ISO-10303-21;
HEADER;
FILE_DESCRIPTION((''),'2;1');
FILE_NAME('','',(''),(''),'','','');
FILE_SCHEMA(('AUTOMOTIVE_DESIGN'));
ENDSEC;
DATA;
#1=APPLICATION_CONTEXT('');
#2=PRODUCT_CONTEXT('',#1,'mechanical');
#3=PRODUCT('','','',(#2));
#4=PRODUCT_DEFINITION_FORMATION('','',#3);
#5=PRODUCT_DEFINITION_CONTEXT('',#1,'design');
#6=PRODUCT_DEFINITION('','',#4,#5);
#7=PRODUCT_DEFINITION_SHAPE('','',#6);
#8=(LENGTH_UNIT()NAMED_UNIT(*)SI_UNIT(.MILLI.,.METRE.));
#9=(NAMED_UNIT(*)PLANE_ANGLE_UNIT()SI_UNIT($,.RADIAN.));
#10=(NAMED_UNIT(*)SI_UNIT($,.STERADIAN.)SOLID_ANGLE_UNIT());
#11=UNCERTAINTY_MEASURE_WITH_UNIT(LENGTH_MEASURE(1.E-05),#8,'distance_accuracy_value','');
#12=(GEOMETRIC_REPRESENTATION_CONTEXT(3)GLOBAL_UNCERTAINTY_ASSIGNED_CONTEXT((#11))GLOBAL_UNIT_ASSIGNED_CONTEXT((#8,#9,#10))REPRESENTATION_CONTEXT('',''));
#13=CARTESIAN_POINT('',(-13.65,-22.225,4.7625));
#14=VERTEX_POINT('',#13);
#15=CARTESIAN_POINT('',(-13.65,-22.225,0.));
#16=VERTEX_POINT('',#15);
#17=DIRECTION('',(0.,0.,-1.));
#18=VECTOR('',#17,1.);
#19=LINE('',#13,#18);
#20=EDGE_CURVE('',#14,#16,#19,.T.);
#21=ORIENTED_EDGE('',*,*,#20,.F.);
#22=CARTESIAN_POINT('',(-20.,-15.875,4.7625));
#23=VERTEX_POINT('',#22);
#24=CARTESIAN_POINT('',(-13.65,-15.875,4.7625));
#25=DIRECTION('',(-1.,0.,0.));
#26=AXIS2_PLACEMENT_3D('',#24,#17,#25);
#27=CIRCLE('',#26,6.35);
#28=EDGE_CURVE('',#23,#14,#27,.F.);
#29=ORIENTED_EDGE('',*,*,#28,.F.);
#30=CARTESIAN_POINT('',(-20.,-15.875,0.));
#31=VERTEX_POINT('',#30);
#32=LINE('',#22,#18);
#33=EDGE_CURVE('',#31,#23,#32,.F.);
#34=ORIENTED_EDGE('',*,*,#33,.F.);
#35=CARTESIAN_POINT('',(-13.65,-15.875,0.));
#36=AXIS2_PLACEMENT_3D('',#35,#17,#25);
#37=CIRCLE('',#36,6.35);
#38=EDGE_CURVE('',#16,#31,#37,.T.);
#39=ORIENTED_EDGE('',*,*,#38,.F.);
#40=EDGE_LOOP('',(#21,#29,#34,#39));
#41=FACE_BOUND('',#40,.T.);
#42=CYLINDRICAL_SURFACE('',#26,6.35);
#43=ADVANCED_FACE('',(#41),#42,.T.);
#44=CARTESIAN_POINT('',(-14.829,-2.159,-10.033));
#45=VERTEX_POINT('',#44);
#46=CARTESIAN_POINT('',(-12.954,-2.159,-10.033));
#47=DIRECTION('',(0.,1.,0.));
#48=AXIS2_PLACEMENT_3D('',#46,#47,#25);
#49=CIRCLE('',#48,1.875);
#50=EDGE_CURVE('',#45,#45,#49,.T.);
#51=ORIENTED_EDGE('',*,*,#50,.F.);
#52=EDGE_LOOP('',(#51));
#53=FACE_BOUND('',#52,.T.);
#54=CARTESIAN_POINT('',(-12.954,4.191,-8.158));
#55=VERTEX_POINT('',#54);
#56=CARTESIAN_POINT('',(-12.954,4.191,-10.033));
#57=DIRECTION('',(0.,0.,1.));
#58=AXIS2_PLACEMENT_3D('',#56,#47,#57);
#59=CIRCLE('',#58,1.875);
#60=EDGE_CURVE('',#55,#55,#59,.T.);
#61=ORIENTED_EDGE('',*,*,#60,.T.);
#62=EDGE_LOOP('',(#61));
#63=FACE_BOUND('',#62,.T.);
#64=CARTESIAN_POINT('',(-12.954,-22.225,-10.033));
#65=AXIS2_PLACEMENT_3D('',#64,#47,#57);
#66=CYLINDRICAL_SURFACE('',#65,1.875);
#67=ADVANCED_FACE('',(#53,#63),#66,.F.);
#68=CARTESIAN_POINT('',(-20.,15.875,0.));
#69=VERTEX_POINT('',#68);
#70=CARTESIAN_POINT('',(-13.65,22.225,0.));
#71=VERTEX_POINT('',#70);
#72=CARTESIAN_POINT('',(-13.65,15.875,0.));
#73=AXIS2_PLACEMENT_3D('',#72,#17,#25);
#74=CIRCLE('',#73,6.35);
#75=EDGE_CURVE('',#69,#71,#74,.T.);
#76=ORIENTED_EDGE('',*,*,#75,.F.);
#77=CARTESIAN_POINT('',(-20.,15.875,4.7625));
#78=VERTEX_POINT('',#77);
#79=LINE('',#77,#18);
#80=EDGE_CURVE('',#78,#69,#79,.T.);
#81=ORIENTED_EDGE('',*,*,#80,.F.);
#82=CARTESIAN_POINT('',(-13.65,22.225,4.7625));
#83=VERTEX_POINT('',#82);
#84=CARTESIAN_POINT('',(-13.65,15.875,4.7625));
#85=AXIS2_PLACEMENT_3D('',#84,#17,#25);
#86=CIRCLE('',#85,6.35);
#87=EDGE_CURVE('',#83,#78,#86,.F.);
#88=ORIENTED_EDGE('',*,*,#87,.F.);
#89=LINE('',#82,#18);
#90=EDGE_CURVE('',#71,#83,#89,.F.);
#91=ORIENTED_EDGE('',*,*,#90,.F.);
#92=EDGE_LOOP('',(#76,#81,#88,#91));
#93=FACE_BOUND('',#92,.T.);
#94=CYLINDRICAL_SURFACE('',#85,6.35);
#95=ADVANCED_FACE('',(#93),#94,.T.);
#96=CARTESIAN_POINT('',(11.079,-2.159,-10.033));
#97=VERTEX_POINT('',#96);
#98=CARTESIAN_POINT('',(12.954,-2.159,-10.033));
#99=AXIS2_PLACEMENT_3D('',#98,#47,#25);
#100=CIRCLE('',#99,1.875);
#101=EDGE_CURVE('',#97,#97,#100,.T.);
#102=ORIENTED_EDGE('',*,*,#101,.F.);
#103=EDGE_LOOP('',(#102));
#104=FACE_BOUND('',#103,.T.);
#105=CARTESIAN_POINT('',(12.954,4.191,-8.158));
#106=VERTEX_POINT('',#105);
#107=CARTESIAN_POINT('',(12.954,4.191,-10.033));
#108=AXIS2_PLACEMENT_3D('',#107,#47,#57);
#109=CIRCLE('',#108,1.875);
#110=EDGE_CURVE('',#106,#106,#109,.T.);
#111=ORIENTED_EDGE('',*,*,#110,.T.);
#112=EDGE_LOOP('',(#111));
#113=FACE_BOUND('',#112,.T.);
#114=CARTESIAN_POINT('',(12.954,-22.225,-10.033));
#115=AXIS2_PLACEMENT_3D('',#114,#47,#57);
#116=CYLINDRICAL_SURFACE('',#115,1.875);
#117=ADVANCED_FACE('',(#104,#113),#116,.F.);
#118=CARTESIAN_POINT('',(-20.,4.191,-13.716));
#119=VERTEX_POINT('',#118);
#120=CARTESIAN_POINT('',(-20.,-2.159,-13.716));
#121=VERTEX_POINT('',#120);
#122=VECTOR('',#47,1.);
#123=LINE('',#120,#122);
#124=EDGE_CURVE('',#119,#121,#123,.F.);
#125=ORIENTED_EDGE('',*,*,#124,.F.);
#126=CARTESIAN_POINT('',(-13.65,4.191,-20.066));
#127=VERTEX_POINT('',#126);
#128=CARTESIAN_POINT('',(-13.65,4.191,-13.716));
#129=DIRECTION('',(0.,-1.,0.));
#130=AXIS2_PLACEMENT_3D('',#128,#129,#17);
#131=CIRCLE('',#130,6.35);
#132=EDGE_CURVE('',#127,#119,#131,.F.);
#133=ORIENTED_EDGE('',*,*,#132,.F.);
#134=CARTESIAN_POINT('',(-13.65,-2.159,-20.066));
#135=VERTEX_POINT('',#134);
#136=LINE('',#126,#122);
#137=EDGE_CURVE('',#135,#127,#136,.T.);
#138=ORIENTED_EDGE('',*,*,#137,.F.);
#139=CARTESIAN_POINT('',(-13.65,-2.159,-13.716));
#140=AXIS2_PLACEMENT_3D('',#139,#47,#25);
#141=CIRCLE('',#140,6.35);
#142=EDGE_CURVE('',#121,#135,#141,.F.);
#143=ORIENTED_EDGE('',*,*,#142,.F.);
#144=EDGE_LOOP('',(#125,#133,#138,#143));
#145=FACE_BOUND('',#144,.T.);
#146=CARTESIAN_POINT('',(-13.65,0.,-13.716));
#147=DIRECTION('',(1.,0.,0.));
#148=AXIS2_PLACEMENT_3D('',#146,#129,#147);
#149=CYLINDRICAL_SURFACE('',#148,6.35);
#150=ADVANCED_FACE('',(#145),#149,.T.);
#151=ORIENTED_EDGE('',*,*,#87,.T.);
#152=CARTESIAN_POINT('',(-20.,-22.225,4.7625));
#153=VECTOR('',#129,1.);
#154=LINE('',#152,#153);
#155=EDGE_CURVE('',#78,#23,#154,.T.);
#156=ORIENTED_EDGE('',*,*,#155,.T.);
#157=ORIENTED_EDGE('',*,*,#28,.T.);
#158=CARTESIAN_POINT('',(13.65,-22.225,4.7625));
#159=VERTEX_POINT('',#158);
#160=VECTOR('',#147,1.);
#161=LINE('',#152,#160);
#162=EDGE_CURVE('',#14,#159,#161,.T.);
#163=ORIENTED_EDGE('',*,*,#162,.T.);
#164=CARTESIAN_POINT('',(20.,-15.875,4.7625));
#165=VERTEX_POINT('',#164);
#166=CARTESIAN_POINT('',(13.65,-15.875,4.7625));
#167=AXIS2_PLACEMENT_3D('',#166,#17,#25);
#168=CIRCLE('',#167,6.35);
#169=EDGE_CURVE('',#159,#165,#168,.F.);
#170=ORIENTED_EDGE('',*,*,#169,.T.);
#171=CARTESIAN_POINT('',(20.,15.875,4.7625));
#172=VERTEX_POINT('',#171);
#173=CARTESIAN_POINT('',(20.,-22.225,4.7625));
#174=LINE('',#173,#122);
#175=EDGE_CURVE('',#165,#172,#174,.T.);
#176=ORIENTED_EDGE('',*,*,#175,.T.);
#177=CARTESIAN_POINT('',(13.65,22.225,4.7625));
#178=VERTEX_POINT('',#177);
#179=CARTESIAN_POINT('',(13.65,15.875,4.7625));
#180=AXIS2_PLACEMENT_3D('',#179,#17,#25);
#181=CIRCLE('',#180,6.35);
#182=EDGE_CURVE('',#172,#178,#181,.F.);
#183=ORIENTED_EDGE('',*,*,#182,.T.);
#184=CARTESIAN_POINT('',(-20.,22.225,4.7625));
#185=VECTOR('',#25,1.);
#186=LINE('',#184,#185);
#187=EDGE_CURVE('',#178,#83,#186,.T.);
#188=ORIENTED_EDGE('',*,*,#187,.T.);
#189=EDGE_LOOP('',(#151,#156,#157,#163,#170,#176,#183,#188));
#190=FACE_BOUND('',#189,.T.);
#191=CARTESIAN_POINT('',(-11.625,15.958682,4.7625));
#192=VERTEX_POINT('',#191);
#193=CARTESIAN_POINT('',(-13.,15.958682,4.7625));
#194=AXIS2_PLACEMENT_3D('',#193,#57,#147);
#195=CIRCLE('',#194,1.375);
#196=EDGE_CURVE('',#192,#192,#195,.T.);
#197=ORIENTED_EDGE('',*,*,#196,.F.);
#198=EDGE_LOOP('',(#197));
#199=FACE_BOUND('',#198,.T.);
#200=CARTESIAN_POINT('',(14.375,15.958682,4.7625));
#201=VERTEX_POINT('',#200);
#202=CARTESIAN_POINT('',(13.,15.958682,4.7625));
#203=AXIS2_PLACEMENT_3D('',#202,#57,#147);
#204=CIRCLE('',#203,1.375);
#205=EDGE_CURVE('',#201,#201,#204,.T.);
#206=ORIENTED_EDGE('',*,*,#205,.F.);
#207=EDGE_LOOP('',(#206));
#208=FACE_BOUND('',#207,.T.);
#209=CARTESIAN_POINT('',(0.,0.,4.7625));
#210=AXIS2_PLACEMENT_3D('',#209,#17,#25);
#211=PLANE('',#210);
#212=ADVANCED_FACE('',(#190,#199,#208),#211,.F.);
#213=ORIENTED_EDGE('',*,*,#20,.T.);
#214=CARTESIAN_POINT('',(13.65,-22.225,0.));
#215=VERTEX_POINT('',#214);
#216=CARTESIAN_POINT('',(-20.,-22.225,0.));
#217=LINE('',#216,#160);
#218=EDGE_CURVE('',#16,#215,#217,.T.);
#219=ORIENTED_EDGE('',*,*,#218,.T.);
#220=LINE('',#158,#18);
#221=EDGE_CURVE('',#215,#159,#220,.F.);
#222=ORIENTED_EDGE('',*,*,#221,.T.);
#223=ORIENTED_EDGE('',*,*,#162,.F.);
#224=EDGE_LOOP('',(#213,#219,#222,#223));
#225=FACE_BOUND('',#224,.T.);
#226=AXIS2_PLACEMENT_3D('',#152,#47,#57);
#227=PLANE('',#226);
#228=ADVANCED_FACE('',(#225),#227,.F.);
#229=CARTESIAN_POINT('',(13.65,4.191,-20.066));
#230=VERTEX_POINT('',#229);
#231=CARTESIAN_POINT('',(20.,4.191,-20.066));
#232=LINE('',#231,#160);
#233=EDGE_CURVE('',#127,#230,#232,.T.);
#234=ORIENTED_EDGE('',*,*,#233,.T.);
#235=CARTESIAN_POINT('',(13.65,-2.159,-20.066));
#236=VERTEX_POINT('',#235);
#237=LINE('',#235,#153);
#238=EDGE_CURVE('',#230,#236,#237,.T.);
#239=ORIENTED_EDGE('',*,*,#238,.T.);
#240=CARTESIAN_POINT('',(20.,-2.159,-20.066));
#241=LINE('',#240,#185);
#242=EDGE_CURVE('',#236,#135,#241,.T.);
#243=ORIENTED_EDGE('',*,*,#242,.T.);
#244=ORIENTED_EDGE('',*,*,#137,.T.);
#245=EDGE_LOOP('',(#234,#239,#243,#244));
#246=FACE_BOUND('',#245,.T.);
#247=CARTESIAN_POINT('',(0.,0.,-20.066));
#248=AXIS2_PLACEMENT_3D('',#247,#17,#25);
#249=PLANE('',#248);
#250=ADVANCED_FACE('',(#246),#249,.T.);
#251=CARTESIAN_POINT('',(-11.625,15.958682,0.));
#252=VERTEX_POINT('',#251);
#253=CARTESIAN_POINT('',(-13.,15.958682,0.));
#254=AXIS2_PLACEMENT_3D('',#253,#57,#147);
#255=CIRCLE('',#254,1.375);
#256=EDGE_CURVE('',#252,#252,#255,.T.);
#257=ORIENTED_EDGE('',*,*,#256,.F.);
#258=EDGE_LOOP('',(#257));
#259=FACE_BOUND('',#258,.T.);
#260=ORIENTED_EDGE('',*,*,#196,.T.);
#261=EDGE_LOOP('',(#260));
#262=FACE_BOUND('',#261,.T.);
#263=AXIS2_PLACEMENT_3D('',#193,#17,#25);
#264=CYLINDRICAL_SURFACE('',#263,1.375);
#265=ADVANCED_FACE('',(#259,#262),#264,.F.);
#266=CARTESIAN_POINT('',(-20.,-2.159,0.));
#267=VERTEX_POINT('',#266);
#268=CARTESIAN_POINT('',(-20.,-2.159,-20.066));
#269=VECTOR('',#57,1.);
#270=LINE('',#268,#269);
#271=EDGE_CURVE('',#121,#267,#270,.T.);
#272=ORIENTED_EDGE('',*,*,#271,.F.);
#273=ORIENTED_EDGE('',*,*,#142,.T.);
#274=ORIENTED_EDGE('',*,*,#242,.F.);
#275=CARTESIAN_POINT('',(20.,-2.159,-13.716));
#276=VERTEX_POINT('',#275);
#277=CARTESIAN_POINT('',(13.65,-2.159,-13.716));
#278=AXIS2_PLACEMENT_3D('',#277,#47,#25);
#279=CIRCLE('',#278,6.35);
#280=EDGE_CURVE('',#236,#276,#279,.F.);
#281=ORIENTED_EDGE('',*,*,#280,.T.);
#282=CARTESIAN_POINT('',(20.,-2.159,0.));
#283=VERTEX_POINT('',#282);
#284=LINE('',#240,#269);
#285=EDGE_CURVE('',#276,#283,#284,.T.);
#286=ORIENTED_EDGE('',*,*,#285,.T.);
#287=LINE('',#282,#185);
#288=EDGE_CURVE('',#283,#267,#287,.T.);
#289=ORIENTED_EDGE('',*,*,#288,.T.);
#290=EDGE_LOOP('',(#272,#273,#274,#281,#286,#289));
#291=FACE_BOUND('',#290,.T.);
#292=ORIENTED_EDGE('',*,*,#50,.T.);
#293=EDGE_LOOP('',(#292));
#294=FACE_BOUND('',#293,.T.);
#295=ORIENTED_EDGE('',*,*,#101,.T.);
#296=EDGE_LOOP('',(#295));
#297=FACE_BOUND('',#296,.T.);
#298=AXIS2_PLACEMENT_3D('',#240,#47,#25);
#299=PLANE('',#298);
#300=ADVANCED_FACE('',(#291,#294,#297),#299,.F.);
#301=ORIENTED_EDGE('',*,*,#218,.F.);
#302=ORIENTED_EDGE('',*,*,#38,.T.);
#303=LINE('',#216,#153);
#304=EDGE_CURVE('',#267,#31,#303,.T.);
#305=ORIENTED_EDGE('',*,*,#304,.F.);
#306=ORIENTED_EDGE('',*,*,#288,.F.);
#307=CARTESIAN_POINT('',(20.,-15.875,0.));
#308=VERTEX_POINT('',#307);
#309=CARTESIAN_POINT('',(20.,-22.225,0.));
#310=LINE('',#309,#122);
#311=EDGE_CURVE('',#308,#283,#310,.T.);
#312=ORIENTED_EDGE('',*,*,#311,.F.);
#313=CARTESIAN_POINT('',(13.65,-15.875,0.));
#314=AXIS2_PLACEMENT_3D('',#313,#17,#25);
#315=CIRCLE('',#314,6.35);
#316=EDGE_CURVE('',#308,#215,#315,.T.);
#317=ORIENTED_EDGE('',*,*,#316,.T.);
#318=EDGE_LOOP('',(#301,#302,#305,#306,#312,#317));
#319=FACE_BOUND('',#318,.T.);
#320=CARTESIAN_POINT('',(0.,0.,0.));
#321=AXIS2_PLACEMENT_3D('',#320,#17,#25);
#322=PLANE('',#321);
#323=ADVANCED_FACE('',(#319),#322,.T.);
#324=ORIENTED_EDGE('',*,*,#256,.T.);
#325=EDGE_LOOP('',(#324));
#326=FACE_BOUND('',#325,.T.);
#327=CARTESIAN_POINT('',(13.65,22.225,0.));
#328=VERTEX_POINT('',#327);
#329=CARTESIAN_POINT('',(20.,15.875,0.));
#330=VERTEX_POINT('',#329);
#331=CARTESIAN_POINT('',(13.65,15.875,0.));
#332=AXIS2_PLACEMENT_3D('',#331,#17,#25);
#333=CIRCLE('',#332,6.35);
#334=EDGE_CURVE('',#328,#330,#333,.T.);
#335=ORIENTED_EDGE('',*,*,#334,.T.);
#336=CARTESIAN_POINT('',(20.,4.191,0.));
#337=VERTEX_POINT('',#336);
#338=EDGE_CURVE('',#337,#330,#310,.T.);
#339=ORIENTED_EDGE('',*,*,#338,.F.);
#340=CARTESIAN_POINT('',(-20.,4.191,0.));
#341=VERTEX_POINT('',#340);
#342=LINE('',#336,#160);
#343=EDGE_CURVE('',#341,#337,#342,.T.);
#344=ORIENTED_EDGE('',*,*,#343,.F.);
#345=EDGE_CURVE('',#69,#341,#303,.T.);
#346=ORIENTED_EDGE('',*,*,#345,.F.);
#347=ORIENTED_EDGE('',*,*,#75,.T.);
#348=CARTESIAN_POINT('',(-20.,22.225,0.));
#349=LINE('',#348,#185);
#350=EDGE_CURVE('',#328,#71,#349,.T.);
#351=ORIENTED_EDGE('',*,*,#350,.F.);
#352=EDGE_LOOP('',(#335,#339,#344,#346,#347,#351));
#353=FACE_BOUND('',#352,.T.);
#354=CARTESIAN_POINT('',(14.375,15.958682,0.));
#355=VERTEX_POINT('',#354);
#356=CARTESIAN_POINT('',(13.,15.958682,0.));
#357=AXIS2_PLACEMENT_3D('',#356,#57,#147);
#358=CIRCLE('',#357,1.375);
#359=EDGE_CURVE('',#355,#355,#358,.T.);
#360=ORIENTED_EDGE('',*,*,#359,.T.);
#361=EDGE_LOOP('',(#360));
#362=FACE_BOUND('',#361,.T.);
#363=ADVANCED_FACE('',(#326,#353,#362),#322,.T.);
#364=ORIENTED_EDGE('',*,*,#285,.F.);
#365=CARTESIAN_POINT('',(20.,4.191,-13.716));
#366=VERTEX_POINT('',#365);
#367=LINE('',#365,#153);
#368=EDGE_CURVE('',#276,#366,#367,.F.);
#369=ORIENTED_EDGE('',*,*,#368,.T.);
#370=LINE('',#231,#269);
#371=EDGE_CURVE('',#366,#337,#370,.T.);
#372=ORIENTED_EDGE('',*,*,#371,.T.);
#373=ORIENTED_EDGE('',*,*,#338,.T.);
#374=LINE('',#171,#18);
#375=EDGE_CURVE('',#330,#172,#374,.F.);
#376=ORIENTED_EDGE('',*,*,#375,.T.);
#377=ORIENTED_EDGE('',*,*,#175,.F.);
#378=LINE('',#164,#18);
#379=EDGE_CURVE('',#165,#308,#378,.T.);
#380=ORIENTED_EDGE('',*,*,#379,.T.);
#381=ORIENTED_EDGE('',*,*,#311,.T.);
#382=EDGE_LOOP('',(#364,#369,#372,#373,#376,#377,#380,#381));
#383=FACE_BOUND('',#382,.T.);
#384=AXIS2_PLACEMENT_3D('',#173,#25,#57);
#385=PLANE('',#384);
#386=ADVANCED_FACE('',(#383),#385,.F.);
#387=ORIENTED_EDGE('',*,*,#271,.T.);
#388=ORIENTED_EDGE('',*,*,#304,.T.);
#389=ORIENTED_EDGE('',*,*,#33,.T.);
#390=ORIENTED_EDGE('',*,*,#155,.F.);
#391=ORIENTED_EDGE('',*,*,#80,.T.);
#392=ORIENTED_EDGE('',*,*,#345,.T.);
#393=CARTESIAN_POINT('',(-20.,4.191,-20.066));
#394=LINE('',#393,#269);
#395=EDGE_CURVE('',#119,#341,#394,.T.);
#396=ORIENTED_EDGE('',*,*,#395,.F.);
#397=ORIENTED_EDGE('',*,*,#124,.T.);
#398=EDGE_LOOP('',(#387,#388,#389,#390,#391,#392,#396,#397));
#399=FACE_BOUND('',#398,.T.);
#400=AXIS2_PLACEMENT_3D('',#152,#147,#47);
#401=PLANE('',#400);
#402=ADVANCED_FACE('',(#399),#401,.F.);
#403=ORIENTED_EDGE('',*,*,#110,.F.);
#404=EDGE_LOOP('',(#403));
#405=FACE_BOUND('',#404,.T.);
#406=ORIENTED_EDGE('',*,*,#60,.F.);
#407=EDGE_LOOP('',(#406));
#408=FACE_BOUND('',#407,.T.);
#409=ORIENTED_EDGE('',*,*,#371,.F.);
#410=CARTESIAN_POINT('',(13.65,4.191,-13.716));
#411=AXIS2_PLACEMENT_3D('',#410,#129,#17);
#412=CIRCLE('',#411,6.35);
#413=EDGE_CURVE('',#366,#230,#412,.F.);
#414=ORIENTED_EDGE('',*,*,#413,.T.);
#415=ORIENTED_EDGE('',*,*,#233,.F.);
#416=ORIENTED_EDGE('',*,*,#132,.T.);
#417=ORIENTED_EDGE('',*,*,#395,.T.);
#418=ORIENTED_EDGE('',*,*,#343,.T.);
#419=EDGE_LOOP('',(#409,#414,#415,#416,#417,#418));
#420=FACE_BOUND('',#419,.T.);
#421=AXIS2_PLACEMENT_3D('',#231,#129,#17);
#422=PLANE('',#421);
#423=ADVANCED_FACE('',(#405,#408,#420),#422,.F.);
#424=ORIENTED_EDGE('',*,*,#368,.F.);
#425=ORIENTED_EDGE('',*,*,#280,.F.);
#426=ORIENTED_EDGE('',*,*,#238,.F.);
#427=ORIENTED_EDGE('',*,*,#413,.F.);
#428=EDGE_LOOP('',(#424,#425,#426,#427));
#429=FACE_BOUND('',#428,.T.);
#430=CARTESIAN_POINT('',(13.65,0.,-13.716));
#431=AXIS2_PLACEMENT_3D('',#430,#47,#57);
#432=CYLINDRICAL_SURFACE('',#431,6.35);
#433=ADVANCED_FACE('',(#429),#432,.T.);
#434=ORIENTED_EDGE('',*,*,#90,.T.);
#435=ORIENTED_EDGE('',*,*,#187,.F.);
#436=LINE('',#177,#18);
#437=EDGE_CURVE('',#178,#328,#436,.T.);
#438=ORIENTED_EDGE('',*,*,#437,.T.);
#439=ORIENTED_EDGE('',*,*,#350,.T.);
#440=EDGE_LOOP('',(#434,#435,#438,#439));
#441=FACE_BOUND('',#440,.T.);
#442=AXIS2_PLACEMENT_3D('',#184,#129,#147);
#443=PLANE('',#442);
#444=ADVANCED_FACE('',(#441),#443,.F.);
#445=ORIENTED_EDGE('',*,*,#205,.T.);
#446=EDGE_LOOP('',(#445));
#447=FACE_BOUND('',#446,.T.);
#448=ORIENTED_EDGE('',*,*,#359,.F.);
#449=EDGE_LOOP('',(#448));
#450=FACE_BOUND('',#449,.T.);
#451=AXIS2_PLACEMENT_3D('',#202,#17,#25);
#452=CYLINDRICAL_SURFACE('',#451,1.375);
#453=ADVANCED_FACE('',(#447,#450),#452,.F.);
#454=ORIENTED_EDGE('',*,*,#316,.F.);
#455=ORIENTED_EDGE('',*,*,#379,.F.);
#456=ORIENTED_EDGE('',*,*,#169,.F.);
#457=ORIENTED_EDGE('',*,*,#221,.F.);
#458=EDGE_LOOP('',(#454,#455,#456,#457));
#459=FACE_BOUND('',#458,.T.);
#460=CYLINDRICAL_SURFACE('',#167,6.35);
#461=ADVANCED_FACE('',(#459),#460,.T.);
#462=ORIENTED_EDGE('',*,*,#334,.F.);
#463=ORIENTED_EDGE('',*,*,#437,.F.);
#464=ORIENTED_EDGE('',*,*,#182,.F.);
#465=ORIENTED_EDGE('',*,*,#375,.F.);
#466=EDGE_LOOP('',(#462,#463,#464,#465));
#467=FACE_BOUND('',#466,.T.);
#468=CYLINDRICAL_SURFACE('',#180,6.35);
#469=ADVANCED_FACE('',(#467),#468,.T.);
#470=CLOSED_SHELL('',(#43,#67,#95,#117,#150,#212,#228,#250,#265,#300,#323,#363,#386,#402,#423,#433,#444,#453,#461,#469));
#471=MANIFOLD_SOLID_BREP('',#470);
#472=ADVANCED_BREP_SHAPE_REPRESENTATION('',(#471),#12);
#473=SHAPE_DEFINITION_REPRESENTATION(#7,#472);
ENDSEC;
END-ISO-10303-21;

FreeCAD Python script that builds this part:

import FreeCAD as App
import Part
import Sketcher

V = App.Vector
Q = App.Units.Quantity


def edges_at(feature, points):
    """Names of the edges that pass closest to the given points."""
    edges = feature.Shape.Edges
    near = lambda p: min(range(len(edges)), key=lambda i: edges[i].distToShape(Part.Vertex(*p))[0])
    return sorted({f"Edge{near(p) + 1}" for p in points})

doc = App.newDocument("Part")
body = doc.addObject("PartDesign::Body", "Body")

# Sketch on XY plane
sketch1 = body.newObject("Sketcher::SketchObject", "Sketch")
sketch1.AttachmentSupport = (doc.getObject("XY_Plane"), [""])
sketch1.MapMode = "FlatFace"
sketch1.addGeometry([
    Part.LineSegment(V(-20, 22.2, 0), V(-20, -22.2, 0)),  # 0
    Part.LineSegment(V(-20, -22.2, 0), V(20, -22.2, 0)),  # 1
    Part.LineSegment(V(20, -22.2, 0), V(20, 22.2, 0)),  # 2
    Part.LineSegment(V(20, 22.2, 0), V(-20, 22.2, 0)),  # 3
    Part.Circle(V(-13, 16, 0), V(0, 0, 1), 1.4),  # 4
    Part.Circle(V(13, 16, 0), V(0, 0, 1), 1.4),  # 5
], False)
sketch1.addConstraint([
    Sketcher.Constraint("Coincident", 0, 2, 1, 1),
    Sketcher.Constraint("Coincident", 1, 2, 2, 1),
    Sketcher.Constraint("Coincident", 2, 2, 3, 1),
    Sketcher.Constraint("Coincident", 3, 2, 0, 1),
    Sketcher.Constraint("Vertical", 0),
    Sketcher.Constraint("Horizontal", 1),
    Sketcher.Constraint("Vertical", 2),
    Sketcher.Constraint("Horizontal", 3),
    Sketcher.Constraint("Equal", 4, 5),
    Sketcher.Constraint("Symmetric", 0, 2, 2, 2, -1, 1),
    Sketcher.Constraint("Symmetric", 4, 3, 5, 3, -2),
    Sketcher.Constraint("DistanceY", 0, 2, 0, 1, Q("1.75 in")),
    Sketcher.Constraint("Diameter", 4, 2.75),
    Sketcher.Constraint("DistanceX", 1, 1, 1, 2, 40.0),
    Sketcher.Constraint("DistanceX", 4, 3, -1, 1, 13.0),
    Sketcher.Constraint("DistanceY", -1, 1, 4, 3, 15.958682),
])
pad1 = body.newObject("PartDesign::Pad", "Pad")
pad1.Profile = sketch1
pad1.Length = Q("0.1875 in")

# Sketch on XY plane
sketch2 = body.newObject("Sketcher::SketchObject", "Sketch001")
sketch2.AttachmentSupport = (doc.getObject("XY_Plane"), [""])
sketch2.MapMode = "FlatFace"
sketch2.addGeometry([
    Part.LineSegment(V(20, 4, 0), V(20, -2, 0)),
    Part.LineSegment(V(20, -2, 0), V(-20, -2, 0)),
    Part.LineSegment(V(-20, -2, 0), V(-20, 4, 0)),
    Part.LineSegment(V(-20, 4, 0), V(20, 4, 0)),
], False)
sketch2.addConstraint([
    Sketcher.Constraint("Coincident", 0, 2, 1, 1),
    Sketcher.Constraint("Coincident", 1, 2, 2, 1),
    Sketcher.Constraint("Coincident", 2, 2, 3, 1),
    Sketcher.Constraint("Coincident", 3, 2, 0, 1),
    Sketcher.Constraint("Vertical", 0),
    Sketcher.Constraint("Horizontal", 1),
    Sketcher.Constraint("Vertical", 2),
    Sketcher.Constraint("Horizontal", 3),
    Sketcher.Constraint("DistanceY", 0, 2, 0, 1, Q("0.25 in")),
    Sketcher.Constraint("DistanceY", 0, 2, -1, 1, Q("0.085 in")),
    Sketcher.Constraint("DistanceX", 1, 2, 1, 1, 40.0),
    Sketcher.Constraint("DistanceX", -1, 1, 0, 2, 20.0),
])
pad2 = body.newObject("PartDesign::Pad", "Pad001")
pad2.Profile = sketch2
pad2.Length = Q("0.79 in")
pad2.Reversed = True

# Sketch on XZ plane
sketch3 = body.newObject("Sketcher::SketchObject", "Sketch002")
sketch3.AttachmentSupport = (doc.getObject("XZ_Plane"), [""])
sketch3.MapMode = "FlatFace"
sketch3.AttachmentOffset = App.Placement(V(0, 0, -0.165 * 25.4), App.Rotation())
sketch3.addGeometry([
    Part.Circle(V(13, -10, 0), V(0, 0, 1), 1.9),
    Part.Circle(V(-13, -10, 0), V(0, 0, 1), 1.9),
], False)
sketch3.addConstraint([
    Sketcher.Constraint("Equal", 0, 1),
    Sketcher.Constraint("Symmetric", 0, 3, 1, 3, -2),
    Sketcher.Constraint("Diameter", 0, 3.75),
    Sketcher.Constraint("DistanceX", -1, 1, 0, 3, Q("0.51 in")),
    Sketcher.Constraint("DistanceY", 0, 3, -1, 1, Q("0.395 in")),
])
pocket1 = body.newObject("PartDesign::Pocket", "Pocket")
pocket1.Profile = sketch3
pocket1.Type = "ThroughAll"
pocket1.Reversed = True
doc.recompute()

fillet = body.newObject("PartDesign::Fillet", "Fillet")
fillet.Base = (pocket1, edges_at(pocket1, [
    (20, 1.016, -20.066),
    (-20, 1.016, -20.066),
    (20, -22.225, 2.381),
    (-20, -22.225, 2.381),
    (-20, 22.225, 2.381),
    (20, 22.225, 2.381),
]))
fillet.Radius = Q("0.25 in")

doc.recompute()
